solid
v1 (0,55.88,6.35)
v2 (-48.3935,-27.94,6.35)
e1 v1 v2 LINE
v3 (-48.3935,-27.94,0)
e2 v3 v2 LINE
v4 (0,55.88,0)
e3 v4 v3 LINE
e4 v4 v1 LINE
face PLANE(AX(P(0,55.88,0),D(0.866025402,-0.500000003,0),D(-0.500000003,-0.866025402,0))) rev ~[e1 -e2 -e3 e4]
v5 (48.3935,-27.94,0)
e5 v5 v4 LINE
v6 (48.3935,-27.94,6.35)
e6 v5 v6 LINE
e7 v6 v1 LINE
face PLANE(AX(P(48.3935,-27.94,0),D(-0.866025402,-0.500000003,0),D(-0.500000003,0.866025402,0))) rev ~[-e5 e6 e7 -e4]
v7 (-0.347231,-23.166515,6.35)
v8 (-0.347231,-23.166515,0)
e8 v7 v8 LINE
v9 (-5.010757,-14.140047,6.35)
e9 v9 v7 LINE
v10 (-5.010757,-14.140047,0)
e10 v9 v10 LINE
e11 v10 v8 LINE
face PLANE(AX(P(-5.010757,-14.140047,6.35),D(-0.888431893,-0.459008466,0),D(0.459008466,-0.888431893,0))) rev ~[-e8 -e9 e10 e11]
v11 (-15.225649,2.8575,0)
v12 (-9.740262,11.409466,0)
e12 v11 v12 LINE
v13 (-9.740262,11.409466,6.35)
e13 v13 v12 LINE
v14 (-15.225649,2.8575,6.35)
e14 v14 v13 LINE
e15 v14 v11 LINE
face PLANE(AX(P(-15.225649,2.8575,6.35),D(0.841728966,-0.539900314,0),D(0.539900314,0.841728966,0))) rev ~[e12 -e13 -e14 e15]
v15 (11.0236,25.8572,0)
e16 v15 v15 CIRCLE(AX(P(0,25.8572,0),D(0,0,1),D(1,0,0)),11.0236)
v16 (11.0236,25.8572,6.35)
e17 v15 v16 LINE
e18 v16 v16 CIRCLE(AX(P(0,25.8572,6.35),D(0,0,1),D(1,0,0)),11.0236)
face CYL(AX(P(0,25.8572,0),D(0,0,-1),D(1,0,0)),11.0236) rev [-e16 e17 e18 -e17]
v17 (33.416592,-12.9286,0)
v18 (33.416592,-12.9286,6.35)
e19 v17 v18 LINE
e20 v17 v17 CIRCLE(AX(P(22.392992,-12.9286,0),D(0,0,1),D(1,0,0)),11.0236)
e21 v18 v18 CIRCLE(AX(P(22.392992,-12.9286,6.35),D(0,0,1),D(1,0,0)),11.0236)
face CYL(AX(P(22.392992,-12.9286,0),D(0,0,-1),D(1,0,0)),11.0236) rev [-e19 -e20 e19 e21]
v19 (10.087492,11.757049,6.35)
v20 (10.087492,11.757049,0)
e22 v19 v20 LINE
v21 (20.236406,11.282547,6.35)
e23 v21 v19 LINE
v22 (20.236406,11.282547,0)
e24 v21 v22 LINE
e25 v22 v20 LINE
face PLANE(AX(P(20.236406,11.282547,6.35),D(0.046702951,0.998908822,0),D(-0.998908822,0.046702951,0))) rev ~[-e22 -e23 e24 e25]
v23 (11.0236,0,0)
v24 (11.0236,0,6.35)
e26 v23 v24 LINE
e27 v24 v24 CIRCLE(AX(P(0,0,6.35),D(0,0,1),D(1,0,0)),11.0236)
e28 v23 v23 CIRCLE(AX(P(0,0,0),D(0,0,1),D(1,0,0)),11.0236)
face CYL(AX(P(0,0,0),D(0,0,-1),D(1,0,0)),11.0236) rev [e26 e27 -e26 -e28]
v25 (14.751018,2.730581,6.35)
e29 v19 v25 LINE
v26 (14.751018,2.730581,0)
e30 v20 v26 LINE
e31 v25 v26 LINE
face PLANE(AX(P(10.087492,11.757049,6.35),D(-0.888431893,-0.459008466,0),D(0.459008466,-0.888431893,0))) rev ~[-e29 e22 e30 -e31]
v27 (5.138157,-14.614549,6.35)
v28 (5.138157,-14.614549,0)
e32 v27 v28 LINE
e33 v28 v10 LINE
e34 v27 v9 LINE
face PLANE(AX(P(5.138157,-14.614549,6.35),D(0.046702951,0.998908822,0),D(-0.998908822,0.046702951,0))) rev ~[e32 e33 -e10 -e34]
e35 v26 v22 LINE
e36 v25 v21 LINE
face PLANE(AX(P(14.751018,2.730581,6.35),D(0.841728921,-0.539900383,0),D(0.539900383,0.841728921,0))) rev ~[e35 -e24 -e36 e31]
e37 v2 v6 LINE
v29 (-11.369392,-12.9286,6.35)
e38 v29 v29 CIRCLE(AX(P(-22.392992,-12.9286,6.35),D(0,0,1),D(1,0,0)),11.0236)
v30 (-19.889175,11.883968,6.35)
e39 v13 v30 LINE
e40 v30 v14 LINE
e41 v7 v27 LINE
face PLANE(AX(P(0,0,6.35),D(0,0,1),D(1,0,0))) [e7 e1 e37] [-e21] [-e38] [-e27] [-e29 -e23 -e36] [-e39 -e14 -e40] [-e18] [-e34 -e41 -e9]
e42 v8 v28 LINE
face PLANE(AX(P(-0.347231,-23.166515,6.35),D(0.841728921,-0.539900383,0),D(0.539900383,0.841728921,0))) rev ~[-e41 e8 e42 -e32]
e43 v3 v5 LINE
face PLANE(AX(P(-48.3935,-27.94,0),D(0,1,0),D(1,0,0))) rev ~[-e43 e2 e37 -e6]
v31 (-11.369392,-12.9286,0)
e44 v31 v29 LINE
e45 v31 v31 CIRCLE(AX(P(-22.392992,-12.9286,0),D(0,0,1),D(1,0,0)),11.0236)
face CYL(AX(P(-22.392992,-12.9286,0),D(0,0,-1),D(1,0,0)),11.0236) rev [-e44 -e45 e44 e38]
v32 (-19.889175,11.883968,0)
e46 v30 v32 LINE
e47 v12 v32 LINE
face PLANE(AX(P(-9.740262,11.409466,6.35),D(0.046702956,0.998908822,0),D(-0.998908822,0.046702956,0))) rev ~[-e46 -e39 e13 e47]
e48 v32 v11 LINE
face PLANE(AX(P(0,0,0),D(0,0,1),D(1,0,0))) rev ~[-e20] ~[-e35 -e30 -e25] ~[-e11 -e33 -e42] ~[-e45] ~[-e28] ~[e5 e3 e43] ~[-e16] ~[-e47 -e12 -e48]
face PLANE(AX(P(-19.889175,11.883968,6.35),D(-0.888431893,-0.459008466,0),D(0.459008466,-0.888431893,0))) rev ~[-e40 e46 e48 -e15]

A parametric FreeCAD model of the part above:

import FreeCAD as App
import Part
import Sketcher

V = App.Vector
Q = App.Units.Quantity

doc = App.newDocument("Part")
params = doc.addObject("Spreadsheet::Sheet", "Params")
for row, (alias, value) in enumerate([
    ("sketch1_diameter", "0.868 in"),
    ("pad1_length", "0.25 in"),
    ("sketch2_length", "0.4 in"),
    ("pocket1_length", "0.25 in"),
], start=1):
    params.set(f"A{row}", alias)
    params.set(f"B{row}", "=" + value)
    params.setAlias(f"B{row}", alias)

body = doc.addObject("PartDesign::Body", "Body")

# Sketch on XY plane
sketch1 = body.newObject("Sketcher::SketchObject", "Sketch")
sketch1.AttachmentSupport = (doc.getObject("XY_Plane"), [""])
sketch1.MapMode = "FlatFace"
sketch1.addGeometry([
    Part.LineSegment(V(-48, -28, 0), V(48, -28, 0)),  # 0
    Part.LineSegment(V(48, -28, 0), V(0, 56, 0)),  # 1
    Part.LineSegment(V(0, 56, 0), V(-48, -28, 0)),  # 2
    Part.Circle(V(-22, -13, 0), V(0, 0, 1), 11),  # 3
    Part.Circle(V(22, -13, 0), V(0, 0, 1), 11),  # 4
    Part.Circle(V(0, 0, 0), V(0, 0, 1), 11),  # 5
    Part.Circle(V(0, 26, 0), V(0, 0, 1), 11),  # 6
], False)
sketch1.addConstraint([
    Sketcher.Constraint("Coincident", 0, 2, 1, 1),
    Sketcher.Constraint("Coincident", 1, 2, 2, 1),
    Sketcher.Constraint("Coincident", 2, 2, 0, 1),
    Sketcher.Constraint("Horizontal", 0),
    Sketcher.Constraint("Coincident", 5, 3, -1, 1),
    Sketcher.Constraint("Equal", 3, 4),
    Sketcher.Constraint("Equal", 4, 5),
    Sketcher.Constraint("Equal", 5, 6),
    Sketcher.Constraint("Symmetric", 3, 3, 4, 3, -2),
    Sketcher.Constraint("PointOnObject", 6, 3, -2),
    Sketcher.Constraint("PointOnObject", 1, 2, -2),
    Sketcher.Constraint("Equal", 1, 2),
    Sketcher.Constraint("Diameter", 3, Q("0.868 in")),
    Sketcher.Constraint("Angle", 1, Q("120 deg")),
    Sketcher.Constraint("DistanceY", 0, 2, -1, 1, Q("1.1 in")),
    Sketcher.Constraint("DistanceY", -1, 1, 1, 2, Q("2.2 in")),
    Sketcher.Constraint("DistanceY", 3, 3, -1, 1, Q("0.509 in")),
    Sketcher.Constraint("DistanceY", -1, 1, 6, 3, Q("1.018 in")),
    Sketcher.Constraint("DistanceX", 3, 3, -1, 1, 22.392992),
])
sketch1.setExpression("Constraints[12]", "Params.sketch1_diameter")
pad1 = body.newObject("PartDesign::Pad", "Pad")
pad1.Profile = sketch1
pad1.setExpression("Length", "Params.pad1_length")

# Sketch on XY plane
sketch2 = body.newObject("Sketcher::SketchObject", "Sketch001")
sketch2.AttachmentSupport = (doc.getObject("XY_Plane"), [""])
sketch2.MapMode = "FlatFace"
sketch2.AttachmentOffset = App.Placement(V(0, 0, 0.25 * 25.4), App.Rotation())
sketch2.addGeometry([
    Part.LineSegment(V(-10, 11, 0), V(-20, 12, 0)),  # 0
    Part.LineSegment(V(-20, 12, 0), V(-15, 3, 0)),  # 1
    Part.LineSegment(V(-15, 3, 0), V(-10, 11, 0)),  # 2
    Part.LineSegment(V(5, -15, 0), V(-5, -14, 0)),  # 3
    Part.LineSegment(V(-5, -14, 0), V(0, -23, 0)),  # 4
    Part.LineSegment(V(0, -23, 0), V(5, -15, 0)),  # 5
    Part.LineSegment(V(10, 12, 0), V(15, 3, 0)),  # 6
    Part.LineSegment(V(15, 3, 0), V(20, 11, 0)),  # 7
    Part.LineSegment(V(20, 11, 0), V(10, 12, 0)),  # 8
], False)
sketch2.addConstraint([
    Sketcher.Constraint("Coincident", 0, 2, 1, 1),
    Sketcher.Constraint("Coincident", 1, 2, 2, 1),
    Sketcher.Constraint("Coincident", 2, 2, 0, 1),
    Sketcher.Constraint("Coincident", 3, 2, 4, 1),
    Sketcher.Constraint("Coincident", 4, 2, 5, 1),
    Sketcher.Constraint("Coincident", 5, 2, 3, 1),
    Sketcher.Constraint("Coincident", 6, 2, 7, 1),
    Sketcher.Constraint("Coincident", 7, 2, 8, 1),
    Sketcher.Constraint("Coincident", 8, 2, 6, 1),
    Sketcher.Constraint("Parallel", 0, 3),
    Sketcher.Constraint("Parallel", 1, 4),
    Sketcher.Constraint("Parallel", 2, 5),
    Sketcher.Constraint("Parallel", 4, 6),
    Sketcher.Constraint("Parallel", 5, 7),
    Sketcher.Constraint("Parallel", 3, 8),
    Sketcher.Constraint("Equal", 0, 1),
    Sketcher.Constraint("Equal", 1, 2),
    Sketcher.Constraint("Equal", 2, 3),
    Sketcher.Constraint("Equal", 5, 6),
    Sketcher.Constraint("Distance", 0, Q("0.4 in")),
    Sketcher.Constraint("DistanceY", -1, 1, 1, 2, Q("0.1125 in")),
    Sketcher.Constraint("DistanceY", 2, 2, 0, 2, 0.474502),
    Sketcher.Constraint("DistanceX", 1, 2, -1, 1, 15.225649),
    Sketcher.Constraint("DistanceX", 4, 2, -1, 1, 0.347231),
    Sketcher.Constraint("DistanceY", 5, 2, -1, 1, 14.614549),
    Sketcher.Constraint("DistanceY", -1, 1, 6, 2, 2.730581),
    Sketcher.Constraint("DistanceX", -1, 1, 8, 2, 10.087492),
])
sketch2.setExpression("Constraints[19]", "Params.sketch2_length")
pocket1 = body.newObject("PartDesign::Pocket", "Pocket")
pocket1.Profile = sketch2
pocket1.setExpression("Length", "Params.pocket1_length")

doc.recompute()
